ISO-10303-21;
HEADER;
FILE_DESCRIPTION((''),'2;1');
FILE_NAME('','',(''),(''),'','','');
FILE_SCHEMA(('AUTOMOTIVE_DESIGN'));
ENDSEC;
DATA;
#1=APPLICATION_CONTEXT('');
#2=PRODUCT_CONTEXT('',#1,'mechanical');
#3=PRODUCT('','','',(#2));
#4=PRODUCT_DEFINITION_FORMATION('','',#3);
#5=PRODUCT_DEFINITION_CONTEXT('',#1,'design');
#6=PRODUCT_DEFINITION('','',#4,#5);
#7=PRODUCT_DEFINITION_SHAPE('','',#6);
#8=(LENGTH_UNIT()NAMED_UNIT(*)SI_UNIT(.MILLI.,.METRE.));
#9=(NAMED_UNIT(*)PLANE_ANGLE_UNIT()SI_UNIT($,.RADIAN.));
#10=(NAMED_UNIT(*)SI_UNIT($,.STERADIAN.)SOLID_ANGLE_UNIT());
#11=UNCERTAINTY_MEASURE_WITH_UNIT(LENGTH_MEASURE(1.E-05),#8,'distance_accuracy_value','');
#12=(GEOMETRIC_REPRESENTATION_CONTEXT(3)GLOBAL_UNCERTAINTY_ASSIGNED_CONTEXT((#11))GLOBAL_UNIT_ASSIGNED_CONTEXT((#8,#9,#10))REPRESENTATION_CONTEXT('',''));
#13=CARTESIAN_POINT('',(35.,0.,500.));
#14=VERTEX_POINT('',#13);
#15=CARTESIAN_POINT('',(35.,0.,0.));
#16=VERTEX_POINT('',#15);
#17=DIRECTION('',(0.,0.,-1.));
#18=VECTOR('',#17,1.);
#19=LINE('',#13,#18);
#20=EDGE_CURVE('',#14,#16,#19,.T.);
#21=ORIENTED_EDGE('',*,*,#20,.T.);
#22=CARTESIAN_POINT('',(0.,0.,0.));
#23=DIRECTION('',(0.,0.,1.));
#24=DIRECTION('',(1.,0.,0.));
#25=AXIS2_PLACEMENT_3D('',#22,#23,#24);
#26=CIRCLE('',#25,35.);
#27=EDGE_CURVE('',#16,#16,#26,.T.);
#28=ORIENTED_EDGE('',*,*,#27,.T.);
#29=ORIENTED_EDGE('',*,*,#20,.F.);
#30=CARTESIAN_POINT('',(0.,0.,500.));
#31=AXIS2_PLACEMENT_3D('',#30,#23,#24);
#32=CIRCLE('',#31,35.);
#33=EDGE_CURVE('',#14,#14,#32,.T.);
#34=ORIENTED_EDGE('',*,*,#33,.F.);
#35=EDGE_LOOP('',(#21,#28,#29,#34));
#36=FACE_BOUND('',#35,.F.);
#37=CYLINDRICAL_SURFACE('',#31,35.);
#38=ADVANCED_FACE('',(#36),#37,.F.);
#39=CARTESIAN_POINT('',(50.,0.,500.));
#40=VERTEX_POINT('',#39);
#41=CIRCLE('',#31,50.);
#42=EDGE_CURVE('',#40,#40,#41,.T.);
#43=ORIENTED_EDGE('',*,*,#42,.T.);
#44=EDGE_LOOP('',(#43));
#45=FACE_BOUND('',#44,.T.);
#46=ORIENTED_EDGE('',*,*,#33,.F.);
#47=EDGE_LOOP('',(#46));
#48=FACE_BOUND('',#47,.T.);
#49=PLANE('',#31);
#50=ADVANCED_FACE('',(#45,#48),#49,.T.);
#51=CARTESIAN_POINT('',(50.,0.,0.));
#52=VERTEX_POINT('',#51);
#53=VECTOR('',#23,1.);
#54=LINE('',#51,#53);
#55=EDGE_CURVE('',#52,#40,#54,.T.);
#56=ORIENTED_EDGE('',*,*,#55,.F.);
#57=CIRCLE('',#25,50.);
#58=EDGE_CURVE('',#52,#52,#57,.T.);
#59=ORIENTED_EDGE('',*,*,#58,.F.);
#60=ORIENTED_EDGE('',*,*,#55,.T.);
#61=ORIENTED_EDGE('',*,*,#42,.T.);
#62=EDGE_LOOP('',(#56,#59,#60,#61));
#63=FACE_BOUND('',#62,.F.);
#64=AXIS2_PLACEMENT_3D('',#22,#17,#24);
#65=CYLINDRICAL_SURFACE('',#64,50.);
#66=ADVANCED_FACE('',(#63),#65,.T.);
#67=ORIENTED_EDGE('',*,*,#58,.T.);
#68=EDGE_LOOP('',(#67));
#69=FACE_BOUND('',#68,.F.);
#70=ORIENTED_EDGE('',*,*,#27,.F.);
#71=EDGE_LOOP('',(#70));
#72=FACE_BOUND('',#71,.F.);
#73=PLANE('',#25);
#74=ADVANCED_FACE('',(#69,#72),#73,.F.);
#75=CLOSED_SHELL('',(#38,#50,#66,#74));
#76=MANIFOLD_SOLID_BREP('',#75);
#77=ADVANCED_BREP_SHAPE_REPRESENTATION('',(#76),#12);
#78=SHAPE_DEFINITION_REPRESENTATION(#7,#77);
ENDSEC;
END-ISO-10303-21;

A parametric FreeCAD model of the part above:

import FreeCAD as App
import Part
import Sketcher
Q = App.Units.Quantity

doc = App.newDocument("Part")
body = doc.addObject("PartDesign::Body", "Body")

# Sketch on XY plane
sketch1 = doc.addObject("Sketcher::SketchObject", "Sketch")
body.addObject(sketch1)
sketch1.AttachmentSupport = (doc.XY_Plane, [""])
sketch1.MapMode = "FlatFace"
sketch1.addGeometry(Part.Circle(App.Vector(0, 0, 0), App.Vector(0, 0, 1), 50), False)
sketch1.addConstraint([
    Sketcher.Constraint("Coincident", 0, 3, -1, 1),
    Sketcher.Constraint("Diameter", 0, Q("100 mm")),
])
pad1 = doc.addObject("PartDesign::Pad", "Pad")
body.addObject(pad1)
pad1.Profile = sketch1
pad1.Length = 500

# Sketch on XY plane
sketch2 = doc.addObject("Sketcher::SketchObject", "Sketch001")
body.addObject(sketch2)
sketch2.AttachmentSupport = (doc.XY_Plane, [""])
sketch2.MapMode = "FlatFace"
sketch2.AttachmentOffset = App.Placement(App.Vector(0, 0, 500), App.Rotation())
sketch2.addGeometry(Part.Circle(App.Vector(0, 0, 0), App.Vector(0, 0, 1), 35), False)
sketch2.addConstraint([
    Sketcher.Constraint("Coincident", 0, 3, -1, 1),
    Sketcher.Constraint("Diameter", 0, Q("70 mm")),
])
pocket1 = doc.addObject("PartDesign::Pocket", "Pocket")
body.addObject(pocket1)
pocket1.Profile = sketch2
pocket1.Length = 500

doc.recompute()
